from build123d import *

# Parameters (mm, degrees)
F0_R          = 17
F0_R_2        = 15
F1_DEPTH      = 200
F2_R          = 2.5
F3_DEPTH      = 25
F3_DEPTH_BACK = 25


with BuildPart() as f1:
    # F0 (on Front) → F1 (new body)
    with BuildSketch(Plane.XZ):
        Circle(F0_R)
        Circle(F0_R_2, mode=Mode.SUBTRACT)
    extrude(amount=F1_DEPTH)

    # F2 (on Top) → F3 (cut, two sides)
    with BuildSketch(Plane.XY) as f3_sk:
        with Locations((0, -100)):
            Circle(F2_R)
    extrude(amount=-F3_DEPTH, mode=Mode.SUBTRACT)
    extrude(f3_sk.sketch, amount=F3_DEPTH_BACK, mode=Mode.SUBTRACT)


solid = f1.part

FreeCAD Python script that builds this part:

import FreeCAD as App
import Part
import Sketcher

V = App.Vector

doc = App.newDocument("Part")
body = doc.addObject("PartDesign::Body", "Body")

sketch1 = body.newObject("Sketcher::SketchObject", "Sketch")
sketch1.AttachmentSupport = (doc.getObject("XZ_Plane"), [""])
sketch1.MapMode = "FlatFace"
sketch1.addGeometry([
    Part.Circle(V(0, 0, 0), V(0, 0, 1), 17),
    Part.Circle(V(0, 0, 0), V(0, 0, 1), 15),
], False)
sketch1.addConstraint([
    Sketcher.Constraint("Coincident", 0, 3, -1, 1),
    Sketcher.Constraint("Coincident", 1, 3, -1, 1),
    Sketcher.Constraint("Diameter", 0, 34.0),
    Sketcher.Constraint("Diameter", 1, 30.0),
])
pad1 = body.newObject("PartDesign::Pad", "Pad")
pad1.Profile = sketch1
pad1.Length = 200

sketch2 = body.newObject("Sketcher::SketchObject", "Sketch001")
sketch2.AttachmentSupport = (doc.getObject("XY_Plane"), [""])
sketch2.MapMode = "FlatFace"
sketch2.addGeometry(Part.Circle(V(0, -100, 0), V(0, 0, 1), 2.5), False)
sketch2.addConstraint([
    Sketcher.Constraint("PointOnObject", 0, 3, -2),
    Sketcher.Constraint("Diameter", 0, 5.0),
    Sketcher.Constraint("DistanceY", 0, 3, -1, 1, 100.0),
])
pocket1 = body.newObject("PartDesign::Pocket", "Pocket")
pocket1.Profile = sketch2
pocket1.Type = "ThroughAll"
pocket1.Midplane = True

doc.recompute()
